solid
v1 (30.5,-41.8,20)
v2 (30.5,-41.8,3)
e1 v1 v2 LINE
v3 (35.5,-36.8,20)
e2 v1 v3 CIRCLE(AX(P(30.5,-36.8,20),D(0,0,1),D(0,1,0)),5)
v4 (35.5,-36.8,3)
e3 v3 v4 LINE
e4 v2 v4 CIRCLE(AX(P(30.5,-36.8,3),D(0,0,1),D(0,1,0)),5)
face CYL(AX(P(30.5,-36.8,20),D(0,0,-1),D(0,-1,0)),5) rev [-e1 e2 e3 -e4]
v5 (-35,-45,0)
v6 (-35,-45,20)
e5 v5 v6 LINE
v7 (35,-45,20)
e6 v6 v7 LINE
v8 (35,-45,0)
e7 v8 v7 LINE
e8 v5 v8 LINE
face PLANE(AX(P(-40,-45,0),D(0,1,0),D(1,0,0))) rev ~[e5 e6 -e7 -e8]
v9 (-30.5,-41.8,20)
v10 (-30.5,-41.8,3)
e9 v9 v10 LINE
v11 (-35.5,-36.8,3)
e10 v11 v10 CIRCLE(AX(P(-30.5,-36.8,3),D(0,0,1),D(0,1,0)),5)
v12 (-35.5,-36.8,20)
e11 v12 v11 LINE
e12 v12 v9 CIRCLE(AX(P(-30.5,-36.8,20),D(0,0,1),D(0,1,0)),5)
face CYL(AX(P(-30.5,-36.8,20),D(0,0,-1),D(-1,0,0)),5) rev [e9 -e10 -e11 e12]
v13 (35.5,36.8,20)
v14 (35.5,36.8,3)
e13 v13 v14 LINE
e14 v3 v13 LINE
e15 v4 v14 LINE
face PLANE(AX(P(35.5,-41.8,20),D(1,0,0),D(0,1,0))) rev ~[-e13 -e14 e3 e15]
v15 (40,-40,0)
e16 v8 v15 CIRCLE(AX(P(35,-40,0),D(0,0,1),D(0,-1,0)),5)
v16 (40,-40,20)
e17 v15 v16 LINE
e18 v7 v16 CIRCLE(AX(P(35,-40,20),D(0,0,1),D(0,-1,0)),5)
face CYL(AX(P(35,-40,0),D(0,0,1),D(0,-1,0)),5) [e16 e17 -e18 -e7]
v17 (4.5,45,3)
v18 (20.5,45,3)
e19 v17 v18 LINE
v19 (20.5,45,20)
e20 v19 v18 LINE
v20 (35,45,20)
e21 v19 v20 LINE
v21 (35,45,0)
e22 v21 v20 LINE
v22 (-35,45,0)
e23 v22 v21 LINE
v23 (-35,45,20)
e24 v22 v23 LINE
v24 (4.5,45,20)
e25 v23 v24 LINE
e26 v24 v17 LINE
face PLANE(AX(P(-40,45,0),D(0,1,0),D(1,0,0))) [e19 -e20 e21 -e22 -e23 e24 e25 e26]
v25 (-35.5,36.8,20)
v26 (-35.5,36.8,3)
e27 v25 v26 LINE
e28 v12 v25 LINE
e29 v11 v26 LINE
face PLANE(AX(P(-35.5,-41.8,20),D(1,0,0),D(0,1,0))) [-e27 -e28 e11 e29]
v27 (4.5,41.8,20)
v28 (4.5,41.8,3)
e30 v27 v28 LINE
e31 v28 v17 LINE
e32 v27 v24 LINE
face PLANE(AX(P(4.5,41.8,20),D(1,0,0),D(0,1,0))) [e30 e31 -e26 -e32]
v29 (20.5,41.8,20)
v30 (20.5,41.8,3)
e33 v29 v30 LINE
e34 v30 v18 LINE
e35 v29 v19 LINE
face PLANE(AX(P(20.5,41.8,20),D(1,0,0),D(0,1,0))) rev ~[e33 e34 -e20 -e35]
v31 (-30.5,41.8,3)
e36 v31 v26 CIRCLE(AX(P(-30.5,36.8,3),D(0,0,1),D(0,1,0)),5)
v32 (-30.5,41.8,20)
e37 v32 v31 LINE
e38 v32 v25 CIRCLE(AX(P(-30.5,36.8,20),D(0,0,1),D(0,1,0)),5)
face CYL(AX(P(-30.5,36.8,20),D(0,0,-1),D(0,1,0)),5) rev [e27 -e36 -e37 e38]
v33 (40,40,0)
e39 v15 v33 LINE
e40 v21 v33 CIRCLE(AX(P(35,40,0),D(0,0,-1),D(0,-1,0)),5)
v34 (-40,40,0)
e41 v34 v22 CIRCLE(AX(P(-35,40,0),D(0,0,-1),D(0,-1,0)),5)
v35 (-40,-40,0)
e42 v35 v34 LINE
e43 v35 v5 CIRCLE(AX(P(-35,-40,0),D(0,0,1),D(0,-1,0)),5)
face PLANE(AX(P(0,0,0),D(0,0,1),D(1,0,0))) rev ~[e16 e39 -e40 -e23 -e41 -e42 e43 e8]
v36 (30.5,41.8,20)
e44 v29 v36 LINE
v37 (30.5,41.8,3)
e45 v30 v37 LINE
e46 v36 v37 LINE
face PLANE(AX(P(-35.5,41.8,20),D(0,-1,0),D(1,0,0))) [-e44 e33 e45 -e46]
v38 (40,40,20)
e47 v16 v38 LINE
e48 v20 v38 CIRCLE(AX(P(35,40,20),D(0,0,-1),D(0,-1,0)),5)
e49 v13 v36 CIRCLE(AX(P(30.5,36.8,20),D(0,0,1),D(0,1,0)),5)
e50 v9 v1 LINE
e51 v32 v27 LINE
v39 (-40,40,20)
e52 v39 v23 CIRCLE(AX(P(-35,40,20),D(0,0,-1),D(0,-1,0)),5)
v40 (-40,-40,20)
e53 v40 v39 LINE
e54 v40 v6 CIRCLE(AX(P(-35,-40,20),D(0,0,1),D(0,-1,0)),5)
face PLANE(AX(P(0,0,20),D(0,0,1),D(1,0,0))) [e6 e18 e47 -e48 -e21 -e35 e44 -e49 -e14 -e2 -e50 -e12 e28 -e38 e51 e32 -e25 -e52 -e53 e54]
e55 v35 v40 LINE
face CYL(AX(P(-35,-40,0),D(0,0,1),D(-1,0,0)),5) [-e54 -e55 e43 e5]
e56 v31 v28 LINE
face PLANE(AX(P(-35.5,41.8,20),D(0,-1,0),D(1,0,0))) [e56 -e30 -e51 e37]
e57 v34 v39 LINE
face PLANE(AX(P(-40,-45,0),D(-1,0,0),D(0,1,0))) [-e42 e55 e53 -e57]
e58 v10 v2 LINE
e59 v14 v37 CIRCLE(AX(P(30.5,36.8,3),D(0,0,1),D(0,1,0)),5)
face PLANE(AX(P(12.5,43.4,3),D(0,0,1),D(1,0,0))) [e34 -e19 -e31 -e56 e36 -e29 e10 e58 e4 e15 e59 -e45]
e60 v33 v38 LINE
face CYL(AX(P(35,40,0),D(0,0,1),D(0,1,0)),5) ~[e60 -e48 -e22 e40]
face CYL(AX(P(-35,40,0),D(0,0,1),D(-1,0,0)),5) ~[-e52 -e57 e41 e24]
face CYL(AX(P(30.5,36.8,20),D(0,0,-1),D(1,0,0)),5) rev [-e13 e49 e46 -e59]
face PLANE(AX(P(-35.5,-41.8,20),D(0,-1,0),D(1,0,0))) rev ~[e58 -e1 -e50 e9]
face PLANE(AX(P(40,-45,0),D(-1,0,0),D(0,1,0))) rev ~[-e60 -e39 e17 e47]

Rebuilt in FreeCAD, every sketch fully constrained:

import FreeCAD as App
import Part
import Sketcher
from FreeCAD import Vector


def edges_at(feature, points):
    """Names of the edges that pass closest to the given points."""
    edges = feature.Shape.Edges
    near = lambda p: min(range(len(edges)), key=lambda i: edges[i].distToShape(Part.Vertex(*p))[0])
    return sorted({f"Edge{near(p) + 1}" for p in points})


def add_polygon(sketch, points):
    """Adds a closed chain of lines whose ends are joined by coincident constraints."""
    first, n = sketch.GeometryCount, len(points)
    for a, b in zip(points, points[1:] + points[:1]):
        sketch.addGeometry(Part.LineSegment(App.Vector(*a, 0), App.Vector(*b, 0)), False)
    for i in range(n):
        sketch.addConstraint(Sketcher.Constraint("Coincident", first + i, 2, first + (i + 1) % n, 1))

doc = App.newDocument("Part")
body = doc.addObject("PartDesign::Body", "Body")

sketch1 = doc.addObject("Sketcher::SketchObject", "Sketch")
body.addObject(sketch1)
sketch1.AttachmentSupport = (doc.XY_Plane, [""])
sketch1.MapMode = "FlatFace"
add_polygon(sketch1, [(-40, 45), (-40, -45), (40, -45), (40, 45)])
sketch1.addConstraint(Sketcher.Constraint("Vertical", 0))
sketch1.addConstraint(Sketcher.Constraint("Horizontal", 1))
sketch1.addConstraint(Sketcher.Constraint("Vertical", 2))
sketch1.addConstraint(Sketcher.Constraint("Horizontal", 3))
sketch1.addConstraint(Sketcher.Constraint("Symmetric", 0, 2, 2, 2, -1, 1))
sketch1.addConstraint(Sketcher.Constraint("DistanceX", 1, 1, 1, 2, 80.0))
sketch1.addConstraint(Sketcher.Constraint("DistanceY", 0, 2, 0, 1, 90.0))
pad1 = doc.addObject("PartDesign::Pad", "Pad")
body.addObject(pad1)
pad1.Profile = sketch1
pad1.Length = 20

sketch2 = doc.addObject("Sketcher::SketchObject", "Sketch001")
body.addObject(sketch2)
sketch2.AttachmentSupport = (doc.XY_Plane, [""])
sketch2.MapMode = "FlatFace"
sketch2.AttachmentOffset = App.Placement(Vector(0, 0, 20), App.Rotation())
add_polygon(sketch2, [(-36, 42), (-36, -42), (36, -42), (36, 42)])
sketch2.addConstraint(Sketcher.Constraint("Vertical", 0))
sketch2.addConstraint(Sketcher.Constraint("Horizontal", 1))
sketch2.addConstraint(Sketcher.Constraint("Vertical", 2))
sketch2.addConstraint(Sketcher.Constraint("Horizontal", 3))
sketch2.addConstraint(Sketcher.Constraint("Symmetric", 0, 2, 2, 2, -1, 1))
sketch2.addConstraint(Sketcher.Constraint("DistanceX", 1, 1, 1, 2, 71.0))
sketch2.addConstraint(Sketcher.Constraint("DistanceY", 0, 2, 0, 1, 83.6))
pocket1 = doc.addObject("PartDesign::Pocket", "Pocket")
body.addObject(pocket1)
pocket1.Profile = sketch2
pocket1.Length = 17

sketch3 = doc.addObject("Sketcher::SketchObject", "Sketch002")
body.addObject(sketch3)
sketch3.AttachmentSupport = (doc.XY_Plane, [""])
sketch3.MapMode = "FlatFace"
sketch3.AttachmentOffset = App.Placement(Vector(0, 0, 20), App.Rotation())
add_polygon(sketch3, [(4.5, 45), (4.5, 41.8), (20.5, 41.8), (20.5, 45)])
sketch3.addConstraint(Sketcher.Constraint("Vertical", 0))
sketch3.addConstraint(Sketcher.Constraint("Horizontal", 1))
sketch3.addConstraint(Sketcher.Constraint("Vertical", 2))
sketch3.addConstraint(Sketcher.Constraint("Horizontal", 3))
sketch3.addConstraint(Sketcher.Constraint("DistanceX", 1, 1, 1, 2, 16.0))
sketch3.addConstraint(Sketcher.Constraint("DistanceY", 0, 2, 0, 1, 3.2))
sketch3.addConstraint(Sketcher.Constraint("DistanceY", -1, 1, 2, 2, 45.0))
sketch3.addConstraint(Sketcher.Constraint("DistanceX", -1, 1, 0, 2, 4.5))
pocket2 = doc.addObject("PartDesign::Pocket", "Pocket001")
body.addObject(pocket2)
pocket2.Profile = sketch3
pocket2.Length = 17
doc.recompute()

fillet = doc.addObject("PartDesign::Fillet", "Fillet")
body.addObject(fillet)
fillet.Base = (pocket2, edges_at(pocket2, [
    (40, 45, 10),
    (40, -45, 10),
    (-40, -45, 10),
    (-40, 45, 10),
]))
fillet.Radius = 5
doc.recompute()

fillet2 = doc.addObject("PartDesign::Fillet", "Fillet001")
body.addObject(fillet2)
fillet2.Base = (fillet, edges_at(fillet, [
    (35.5, -41.8, 11.5),
    (35.5, 41.8, 11.5),
    (-35.5, 41.8, 11.5),
    (-35.5, -41.8, 11.5),
]))
fillet2.Radius = 5

doc.recompute()
